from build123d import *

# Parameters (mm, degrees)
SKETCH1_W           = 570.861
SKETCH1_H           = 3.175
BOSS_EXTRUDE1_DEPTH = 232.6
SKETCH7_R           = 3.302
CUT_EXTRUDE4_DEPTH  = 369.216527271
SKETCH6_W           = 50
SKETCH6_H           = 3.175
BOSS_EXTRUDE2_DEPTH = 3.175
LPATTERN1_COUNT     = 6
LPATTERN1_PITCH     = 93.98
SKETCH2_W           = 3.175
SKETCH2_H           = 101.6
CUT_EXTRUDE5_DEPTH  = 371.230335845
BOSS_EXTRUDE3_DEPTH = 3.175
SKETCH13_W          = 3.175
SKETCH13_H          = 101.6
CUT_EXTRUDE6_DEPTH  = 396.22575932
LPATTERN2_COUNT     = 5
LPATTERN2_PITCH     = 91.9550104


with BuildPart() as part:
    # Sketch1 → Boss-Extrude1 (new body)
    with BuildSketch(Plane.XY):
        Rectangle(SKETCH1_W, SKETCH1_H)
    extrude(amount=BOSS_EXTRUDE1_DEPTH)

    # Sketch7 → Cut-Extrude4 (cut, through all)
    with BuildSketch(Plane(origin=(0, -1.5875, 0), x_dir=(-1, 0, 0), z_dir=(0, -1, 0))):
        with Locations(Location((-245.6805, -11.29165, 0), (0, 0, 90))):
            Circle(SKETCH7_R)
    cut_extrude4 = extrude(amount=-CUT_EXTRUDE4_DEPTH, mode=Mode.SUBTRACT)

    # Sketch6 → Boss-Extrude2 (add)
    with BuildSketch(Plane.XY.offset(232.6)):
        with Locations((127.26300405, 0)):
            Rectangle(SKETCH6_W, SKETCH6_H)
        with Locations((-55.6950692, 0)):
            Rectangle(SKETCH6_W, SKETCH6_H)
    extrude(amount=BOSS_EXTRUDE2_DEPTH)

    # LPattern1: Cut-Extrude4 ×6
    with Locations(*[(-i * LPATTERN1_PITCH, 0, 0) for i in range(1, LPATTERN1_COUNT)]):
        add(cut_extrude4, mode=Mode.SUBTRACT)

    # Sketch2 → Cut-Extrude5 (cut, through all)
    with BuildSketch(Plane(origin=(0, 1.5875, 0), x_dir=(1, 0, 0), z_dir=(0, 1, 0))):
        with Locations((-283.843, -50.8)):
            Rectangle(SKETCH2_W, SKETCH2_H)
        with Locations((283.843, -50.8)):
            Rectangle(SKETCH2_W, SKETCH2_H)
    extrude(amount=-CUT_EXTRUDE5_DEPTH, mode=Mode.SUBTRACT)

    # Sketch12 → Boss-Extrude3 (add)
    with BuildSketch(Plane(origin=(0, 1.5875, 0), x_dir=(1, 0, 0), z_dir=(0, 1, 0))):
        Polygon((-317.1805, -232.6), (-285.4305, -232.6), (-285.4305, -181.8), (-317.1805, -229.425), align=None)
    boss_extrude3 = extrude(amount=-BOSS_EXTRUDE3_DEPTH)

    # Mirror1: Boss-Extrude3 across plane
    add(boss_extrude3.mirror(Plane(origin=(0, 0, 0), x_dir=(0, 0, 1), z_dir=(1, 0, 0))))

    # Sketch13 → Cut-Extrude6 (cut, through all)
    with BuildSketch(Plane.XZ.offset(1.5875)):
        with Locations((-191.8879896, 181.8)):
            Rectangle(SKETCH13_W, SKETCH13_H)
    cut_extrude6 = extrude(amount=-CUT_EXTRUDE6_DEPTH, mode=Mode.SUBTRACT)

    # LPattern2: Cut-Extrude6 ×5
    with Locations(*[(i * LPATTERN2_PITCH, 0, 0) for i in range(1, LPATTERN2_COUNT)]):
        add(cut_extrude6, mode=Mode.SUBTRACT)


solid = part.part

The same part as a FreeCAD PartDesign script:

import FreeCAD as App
import Part
import Sketcher

V = App.Vector
Q = App.Units.Quantity


def add_polygon(sketch, points):
    """Adds a closed chain of lines whose ends are joined by coincident constraints."""
    first, n = sketch.GeometryCount, len(points)
    for a, b in zip(points, points[1:] + points[:1]):
        sketch.addGeometry(Part.LineSegment(App.Vector(*a, 0), App.Vector(*b, 0)), False)
    for i in range(n):
        sketch.addConstraint(Sketcher.Constraint("Coincident", first + i, 2, first + (i + 1) % n, 1))

doc = App.newDocument("Part")
body = doc.addObject("PartDesign::Body", "Body")

# Sketch on XY plane
sketch1 = body.newObject("Sketcher::SketchObject", "Sketch")
sketch1.AttachmentSupport = (doc.getObject("XY_Plane"), [""])
sketch1.MapMode = "FlatFace"
add_polygon(sketch1, [(-285.4, 1.6), (-285.4, -1.6), (285.4, -1.6), (285.4, 1.6)])  # lines 0-3
sketch1.addConstraint([
    Sketcher.Constraint("Vertical", 0),
    Sketcher.Constraint("Horizontal", 1),
    Sketcher.Constraint("Vertical", 2),
    Sketcher.Constraint("Horizontal", 3),
    Sketcher.Constraint("Symmetric", 0, 2, 2, 2, -1, 1),
    Sketcher.Constraint("DistanceY", 0, 2, 0, 1, Q("0.125 in")),
    Sketcher.Constraint("DistanceX", 1, 1, 1, 2, 570.861),
])
pad1 = body.newObject("PartDesign::Pad", "Pad")
pad1.Profile = sketch1
pad1.Length = 232.6

# Sketch on XZ plane
sketch2 = body.newObject("Sketcher::SketchObject", "Sketch001")
sketch2.AttachmentSupport = (doc.getObject("XZ_Plane"), [""])
sketch2.MapMode = "FlatFace"
sketch2.AttachmentOffset = App.Placement(V(0, 0, 0.0625 * 25.4), App.Rotation())
sketch2.addGeometry(Part.Circle(V(245.7, 11.3, 0), V(0, 0, 1), 3.3), False)
sketch2.addConstraint([
    Sketcher.Constraint("Diameter", 0, Q("0.26 in")),
    Sketcher.Constraint("DistanceX", -1, 1, 0, 3, 245.6805),
    Sketcher.Constraint("DistanceY", -1, 1, 0, 3, 11.29165),
])
pocket1 = body.newObject("PartDesign::Pocket", "Pocket")
pocket1.Profile = sketch2
pocket1.Type = "ThroughAll"

# Sketch on XY plane
sketch3 = body.newObject("Sketcher::SketchObject", "Sketch002")
sketch3.AttachmentSupport = (doc.getObject("XY_Plane"), [""])
sketch3.MapMode = "FlatFace"
sketch3.AttachmentOffset = App.Placement(V(0, 0, 232.6), App.Rotation())
add_polygon(sketch3, [(102.3, 1.6), (102.3, -1.6), (152.3, -1.6), (152.3, 1.6)])  # lines 0-3
add_polygon(sketch3, [(-80.7, 1.6), (-80.7, -1.6), (-30.7, -1.6), (-30.7, 1.6)])  # lines 4-7
sketch3.addConstraint([
    Sketcher.Constraint("Vertical", 0),
    Sketcher.Constraint("Horizontal", 1),
    Sketcher.Constraint("Vertical", 2),
    Sketcher.Constraint("Horizontal", 3),
    Sketcher.Constraint("Vertical", 4),
    Sketcher.Constraint("Horizontal", 5),
    Sketcher.Constraint("Vertical", 6),
    Sketcher.Constraint("Horizontal", 7),
    Sketcher.Constraint("Horizontal", 1, 2, 4, 2),
    Sketcher.Constraint("Horizontal", 3, 2, 6, 2),
    Sketcher.Constraint("Equal", 3, 5),
    Sketcher.Constraint("DistanceY", 0, 2, 0, 1, Q("0.125 in")),
    Sketcher.Constraint("DistanceY", 0, 2, -1, 1, Q("0.0625 in")),
    Sketcher.Constraint("DistanceX", 1, 1, 1, 2, 50.0),
    Sketcher.Constraint("DistanceX", 4, 2, -1, 1, 80.695069),
    Sketcher.Constraint("DistanceX", -1, 1, 0, 2, 102.263004),
])
pad2 = body.newObject("PartDesign::Pad", "Pad001")
pad2.Profile = sketch3
pad2.Length = Q("0.125 in")
doc.recompute()

linearpattern = body.newObject("PartDesign::LinearPattern", "LinearPattern")
linearpattern.Originals = [pocket1]
linearpattern.Direction = (doc.getObject("X_Axis"), [""])
linearpattern.Mode = "offset"
linearpattern.Offset = Q("3.7 in")
linearpattern.Occurrences = 6
linearpattern.Reversed = True
body.Tip = linearpattern

# Sketch on XZ plane
sketch4 = body.newObject("Sketcher::SketchObject", "Sketch003")
sketch4.AttachmentSupport = (doc.getObject("XZ_Plane"), [""])
sketch4.MapMode = "FlatFace"
sketch4.AttachmentOffset = App.Placement(V(0, 0, -0.0625 * 25.4), App.Rotation())
add_polygon(sketch4, [(-285.4, 0), (-285.4, 101.6), (-282.3, 101.6), (-282.3, 0)])  # lines 0-3
add_polygon(sketch4, [(282.3, 0), (282.3, 101.6), (285.4, 101.6), (285.4, 0)])  # lines 4-7
sketch4.addConstraint([
    Sketcher.Constraint("Vertical", 0),
    Sketcher.Constraint("Horizontal", 1),
    Sketcher.Constraint("Vertical", 2),
    Sketcher.Constraint("Horizontal", 3),
    Sketcher.Constraint("Vertical", 4),
    Sketcher.Constraint("Horizontal", 5),
    Sketcher.Constraint("Vertical", 6),
    Sketcher.Constraint("Horizontal", 7),
    Sketcher.Constraint("Symmetric", 3, 2, 6, 2, -1, 1),
    Sketcher.Constraint("Symmetric", 1, 2, 4, 2, -2),
    Sketcher.Constraint("PointOnObject", 2, 2, -1),
    Sketcher.Constraint("DistanceY", 0, 1, 0, 2, Q("4 in")),
    Sketcher.Constraint("DistanceX", 1, 1, 1, 2, Q("0.125 in")),
    Sketcher.Constraint("DistanceX", 0, 2, -1, 1, 285.4305),
])
pocket2 = body.newObject("PartDesign::Pocket", "Pocket001")
pocket2.Profile = sketch4
pocket2.Type = "ThroughAll"
pocket2.Reversed = True

# Sketch on XZ plane
sketch5 = body.newObject("Sketcher::SketchObject", "Sketch004")
sketch5.AttachmentSupport = (doc.getObject("XZ_Plane"), [""])
sketch5.MapMode = "FlatFace"
sketch5.AttachmentOffset = App.Placement(V(0, 0, -0.0625 * 25.4), App.Rotation())
add_polygon(sketch5, [(-317.2, 232.6), (-285.4, 232.6), (-285.4, 181.8), (-317.2, 229.4)])  # lines 0-3
sketch5.addConstraint([
    Sketcher.Constraint("Horizontal", 0),
    Sketcher.Constraint("Vertical", 1),
    Sketcher.Constraint("Vertical", 3),
    Sketcher.Constraint("DistanceY", 1, 2, 1, 1, Q("2 in")),
    Sketcher.Constraint("DistanceX", 0, 1, 0, 2, Q("1.25 in")),
    Sketcher.Constraint("DistanceY", 3, 1, 3, 2, Q("0.125 in")),
    Sketcher.Constraint("DistanceX", 0, 2, -1, 1, 285.4305),
    Sketcher.Constraint("DistanceY", -1, 1, 0, 2, 232.6),
])
pad3 = body.newObject("PartDesign::Pad", "Pad002")
pad3.Profile = sketch5
pad3.Length = Q("0.125 in")
doc.recompute()

mirrored = body.newObject("PartDesign::Mirrored", "Mirrored")
mirrored.Originals = [pad3]
mirrored.MirrorPlane = (doc.getObject("YZ_Plane"), [""])
body.Tip = mirrored

# Sketch on XZ plane
sketch6 = body.newObject("Sketcher::SketchObject", "Sketch005")
sketch6.AttachmentSupport = (doc.getObject("XZ_Plane"), [""])
sketch6.MapMode = "FlatFace"
sketch6.AttachmentOffset = App.Placement(V(0, 0, 0.0625 * 25.4), App.Rotation())
add_polygon(sketch6, [(-193.5, 232.6), (-193.5, 131), (-190.3, 131), (-190.3, 232.6)])  # lines 0-3
sketch6.addConstraint([
    Sketcher.Constraint("Vertical", 0),
    Sketcher.Constraint("Horizontal", 1),
    Sketcher.Constraint("Vertical", 2),
    Sketcher.Constraint("Horizontal", 3),
    Sketcher.Constraint("DistanceY", 0, 2, 0, 1, Q("4 in")),
    Sketcher.Constraint("DistanceX", 1, 1, 1, 2, Q("0.125 in")),
    Sketcher.Constraint("DistanceY", -1, 1, 0, 2, 131.0),
    Sketcher.Constraint("DistanceX", 0, 2, -1, 1, 193.47549),
])
pocket3 = body.newObject("PartDesign::Pocket", "Pocket002")
pocket3.Profile = sketch6
pocket3.Type = "ThroughAll"
doc.recompute()

linearpattern2 = body.newObject("PartDesign::LinearPattern", "LinearPattern001")
linearpattern2.Originals = [pocket3]
linearpattern2.Direction = (doc.getObject("X_Axis"), [""])
linearpattern2.Mode = "offset"
linearpattern2.Offset = 91.95501
linearpattern2.Occurrences = 5
body.Tip = linearpattern2

doc.recompute()
